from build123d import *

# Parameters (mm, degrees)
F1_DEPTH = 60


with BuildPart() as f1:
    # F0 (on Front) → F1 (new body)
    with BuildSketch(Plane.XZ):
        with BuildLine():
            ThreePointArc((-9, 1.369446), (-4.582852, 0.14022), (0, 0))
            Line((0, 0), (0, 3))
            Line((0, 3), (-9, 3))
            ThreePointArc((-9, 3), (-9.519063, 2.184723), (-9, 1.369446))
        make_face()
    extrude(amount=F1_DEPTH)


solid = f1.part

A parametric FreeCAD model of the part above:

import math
import FreeCAD as App
import Part
import Sketcher
Q = App.Units.Quantity

doc = App.newDocument("Part")
body = doc.addObject("PartDesign::Body", "Body")

# Sketch on XZ plane
sketch1 = body.newObject("Sketcher::SketchObject", "Sketch")
sketch1.AttachmentSupport = (doc.getObject("XZ_Plane"), [""])
sketch1.MapMode = "FlatFace"
sketch1.addGeometry([
    Part.ArcOfCircle(Part.Circle(App.Vector(-1.7, 19, 0), App.Vector(0, 0, 1), 19.1), math.radians(-112), math.radians(-85)),
    Part.LineSegment(App.Vector(0, 0, 0), App.Vector(0, 3, 0)),
    Part.LineSegment(App.Vector(0, 3, 0), App.Vector(-9, 3, 0)),
    Part.ArcOfCircle(Part.Circle(App.Vector(-8.6, 2.2, 0), App.Vector(0, 0, 1), 0.9), math.radians(115), math.radians(245)),
], False)
sketch1.addConstraint([
    Sketcher.Constraint("Coincident", 0, 2, 1, 1),
    Sketcher.Constraint("Coincident", 1, 2, 2, 1),
    Sketcher.Constraint("Coincident", 2, 2, 3, 1),
    Sketcher.Constraint("Coincident", 3, 2, 0, 1),
    Sketcher.Constraint("Vertical", 1),
    Sketcher.Constraint("Horizontal", 2),
    Sketcher.Constraint("Coincident", 0, 2, -1, 1),
    Sketcher.Constraint("Vertical", 2, 2, 3, 2),
    Sketcher.Constraint("DistanceX", 2, 2, 2, 1, Q("9 mm")),
    Sketcher.Constraint("DistanceY", 1, 1, 1, 2, Q("3 mm")),
    Sketcher.Constraint("Radius", 0, Q("19.084355 mm")),
    Sketcher.Constraint("Radius", 3, Q("0.899797 mm")),
    Sketcher.Constraint("DistanceY", -1, 1, 0, 3, Q("19.00741 mm")),
])
pad1 = body.newObject("PartDesign::Pad", "Pad")
pad1.Profile = sketch1
pad1.Length = 60

doc.recompute()
